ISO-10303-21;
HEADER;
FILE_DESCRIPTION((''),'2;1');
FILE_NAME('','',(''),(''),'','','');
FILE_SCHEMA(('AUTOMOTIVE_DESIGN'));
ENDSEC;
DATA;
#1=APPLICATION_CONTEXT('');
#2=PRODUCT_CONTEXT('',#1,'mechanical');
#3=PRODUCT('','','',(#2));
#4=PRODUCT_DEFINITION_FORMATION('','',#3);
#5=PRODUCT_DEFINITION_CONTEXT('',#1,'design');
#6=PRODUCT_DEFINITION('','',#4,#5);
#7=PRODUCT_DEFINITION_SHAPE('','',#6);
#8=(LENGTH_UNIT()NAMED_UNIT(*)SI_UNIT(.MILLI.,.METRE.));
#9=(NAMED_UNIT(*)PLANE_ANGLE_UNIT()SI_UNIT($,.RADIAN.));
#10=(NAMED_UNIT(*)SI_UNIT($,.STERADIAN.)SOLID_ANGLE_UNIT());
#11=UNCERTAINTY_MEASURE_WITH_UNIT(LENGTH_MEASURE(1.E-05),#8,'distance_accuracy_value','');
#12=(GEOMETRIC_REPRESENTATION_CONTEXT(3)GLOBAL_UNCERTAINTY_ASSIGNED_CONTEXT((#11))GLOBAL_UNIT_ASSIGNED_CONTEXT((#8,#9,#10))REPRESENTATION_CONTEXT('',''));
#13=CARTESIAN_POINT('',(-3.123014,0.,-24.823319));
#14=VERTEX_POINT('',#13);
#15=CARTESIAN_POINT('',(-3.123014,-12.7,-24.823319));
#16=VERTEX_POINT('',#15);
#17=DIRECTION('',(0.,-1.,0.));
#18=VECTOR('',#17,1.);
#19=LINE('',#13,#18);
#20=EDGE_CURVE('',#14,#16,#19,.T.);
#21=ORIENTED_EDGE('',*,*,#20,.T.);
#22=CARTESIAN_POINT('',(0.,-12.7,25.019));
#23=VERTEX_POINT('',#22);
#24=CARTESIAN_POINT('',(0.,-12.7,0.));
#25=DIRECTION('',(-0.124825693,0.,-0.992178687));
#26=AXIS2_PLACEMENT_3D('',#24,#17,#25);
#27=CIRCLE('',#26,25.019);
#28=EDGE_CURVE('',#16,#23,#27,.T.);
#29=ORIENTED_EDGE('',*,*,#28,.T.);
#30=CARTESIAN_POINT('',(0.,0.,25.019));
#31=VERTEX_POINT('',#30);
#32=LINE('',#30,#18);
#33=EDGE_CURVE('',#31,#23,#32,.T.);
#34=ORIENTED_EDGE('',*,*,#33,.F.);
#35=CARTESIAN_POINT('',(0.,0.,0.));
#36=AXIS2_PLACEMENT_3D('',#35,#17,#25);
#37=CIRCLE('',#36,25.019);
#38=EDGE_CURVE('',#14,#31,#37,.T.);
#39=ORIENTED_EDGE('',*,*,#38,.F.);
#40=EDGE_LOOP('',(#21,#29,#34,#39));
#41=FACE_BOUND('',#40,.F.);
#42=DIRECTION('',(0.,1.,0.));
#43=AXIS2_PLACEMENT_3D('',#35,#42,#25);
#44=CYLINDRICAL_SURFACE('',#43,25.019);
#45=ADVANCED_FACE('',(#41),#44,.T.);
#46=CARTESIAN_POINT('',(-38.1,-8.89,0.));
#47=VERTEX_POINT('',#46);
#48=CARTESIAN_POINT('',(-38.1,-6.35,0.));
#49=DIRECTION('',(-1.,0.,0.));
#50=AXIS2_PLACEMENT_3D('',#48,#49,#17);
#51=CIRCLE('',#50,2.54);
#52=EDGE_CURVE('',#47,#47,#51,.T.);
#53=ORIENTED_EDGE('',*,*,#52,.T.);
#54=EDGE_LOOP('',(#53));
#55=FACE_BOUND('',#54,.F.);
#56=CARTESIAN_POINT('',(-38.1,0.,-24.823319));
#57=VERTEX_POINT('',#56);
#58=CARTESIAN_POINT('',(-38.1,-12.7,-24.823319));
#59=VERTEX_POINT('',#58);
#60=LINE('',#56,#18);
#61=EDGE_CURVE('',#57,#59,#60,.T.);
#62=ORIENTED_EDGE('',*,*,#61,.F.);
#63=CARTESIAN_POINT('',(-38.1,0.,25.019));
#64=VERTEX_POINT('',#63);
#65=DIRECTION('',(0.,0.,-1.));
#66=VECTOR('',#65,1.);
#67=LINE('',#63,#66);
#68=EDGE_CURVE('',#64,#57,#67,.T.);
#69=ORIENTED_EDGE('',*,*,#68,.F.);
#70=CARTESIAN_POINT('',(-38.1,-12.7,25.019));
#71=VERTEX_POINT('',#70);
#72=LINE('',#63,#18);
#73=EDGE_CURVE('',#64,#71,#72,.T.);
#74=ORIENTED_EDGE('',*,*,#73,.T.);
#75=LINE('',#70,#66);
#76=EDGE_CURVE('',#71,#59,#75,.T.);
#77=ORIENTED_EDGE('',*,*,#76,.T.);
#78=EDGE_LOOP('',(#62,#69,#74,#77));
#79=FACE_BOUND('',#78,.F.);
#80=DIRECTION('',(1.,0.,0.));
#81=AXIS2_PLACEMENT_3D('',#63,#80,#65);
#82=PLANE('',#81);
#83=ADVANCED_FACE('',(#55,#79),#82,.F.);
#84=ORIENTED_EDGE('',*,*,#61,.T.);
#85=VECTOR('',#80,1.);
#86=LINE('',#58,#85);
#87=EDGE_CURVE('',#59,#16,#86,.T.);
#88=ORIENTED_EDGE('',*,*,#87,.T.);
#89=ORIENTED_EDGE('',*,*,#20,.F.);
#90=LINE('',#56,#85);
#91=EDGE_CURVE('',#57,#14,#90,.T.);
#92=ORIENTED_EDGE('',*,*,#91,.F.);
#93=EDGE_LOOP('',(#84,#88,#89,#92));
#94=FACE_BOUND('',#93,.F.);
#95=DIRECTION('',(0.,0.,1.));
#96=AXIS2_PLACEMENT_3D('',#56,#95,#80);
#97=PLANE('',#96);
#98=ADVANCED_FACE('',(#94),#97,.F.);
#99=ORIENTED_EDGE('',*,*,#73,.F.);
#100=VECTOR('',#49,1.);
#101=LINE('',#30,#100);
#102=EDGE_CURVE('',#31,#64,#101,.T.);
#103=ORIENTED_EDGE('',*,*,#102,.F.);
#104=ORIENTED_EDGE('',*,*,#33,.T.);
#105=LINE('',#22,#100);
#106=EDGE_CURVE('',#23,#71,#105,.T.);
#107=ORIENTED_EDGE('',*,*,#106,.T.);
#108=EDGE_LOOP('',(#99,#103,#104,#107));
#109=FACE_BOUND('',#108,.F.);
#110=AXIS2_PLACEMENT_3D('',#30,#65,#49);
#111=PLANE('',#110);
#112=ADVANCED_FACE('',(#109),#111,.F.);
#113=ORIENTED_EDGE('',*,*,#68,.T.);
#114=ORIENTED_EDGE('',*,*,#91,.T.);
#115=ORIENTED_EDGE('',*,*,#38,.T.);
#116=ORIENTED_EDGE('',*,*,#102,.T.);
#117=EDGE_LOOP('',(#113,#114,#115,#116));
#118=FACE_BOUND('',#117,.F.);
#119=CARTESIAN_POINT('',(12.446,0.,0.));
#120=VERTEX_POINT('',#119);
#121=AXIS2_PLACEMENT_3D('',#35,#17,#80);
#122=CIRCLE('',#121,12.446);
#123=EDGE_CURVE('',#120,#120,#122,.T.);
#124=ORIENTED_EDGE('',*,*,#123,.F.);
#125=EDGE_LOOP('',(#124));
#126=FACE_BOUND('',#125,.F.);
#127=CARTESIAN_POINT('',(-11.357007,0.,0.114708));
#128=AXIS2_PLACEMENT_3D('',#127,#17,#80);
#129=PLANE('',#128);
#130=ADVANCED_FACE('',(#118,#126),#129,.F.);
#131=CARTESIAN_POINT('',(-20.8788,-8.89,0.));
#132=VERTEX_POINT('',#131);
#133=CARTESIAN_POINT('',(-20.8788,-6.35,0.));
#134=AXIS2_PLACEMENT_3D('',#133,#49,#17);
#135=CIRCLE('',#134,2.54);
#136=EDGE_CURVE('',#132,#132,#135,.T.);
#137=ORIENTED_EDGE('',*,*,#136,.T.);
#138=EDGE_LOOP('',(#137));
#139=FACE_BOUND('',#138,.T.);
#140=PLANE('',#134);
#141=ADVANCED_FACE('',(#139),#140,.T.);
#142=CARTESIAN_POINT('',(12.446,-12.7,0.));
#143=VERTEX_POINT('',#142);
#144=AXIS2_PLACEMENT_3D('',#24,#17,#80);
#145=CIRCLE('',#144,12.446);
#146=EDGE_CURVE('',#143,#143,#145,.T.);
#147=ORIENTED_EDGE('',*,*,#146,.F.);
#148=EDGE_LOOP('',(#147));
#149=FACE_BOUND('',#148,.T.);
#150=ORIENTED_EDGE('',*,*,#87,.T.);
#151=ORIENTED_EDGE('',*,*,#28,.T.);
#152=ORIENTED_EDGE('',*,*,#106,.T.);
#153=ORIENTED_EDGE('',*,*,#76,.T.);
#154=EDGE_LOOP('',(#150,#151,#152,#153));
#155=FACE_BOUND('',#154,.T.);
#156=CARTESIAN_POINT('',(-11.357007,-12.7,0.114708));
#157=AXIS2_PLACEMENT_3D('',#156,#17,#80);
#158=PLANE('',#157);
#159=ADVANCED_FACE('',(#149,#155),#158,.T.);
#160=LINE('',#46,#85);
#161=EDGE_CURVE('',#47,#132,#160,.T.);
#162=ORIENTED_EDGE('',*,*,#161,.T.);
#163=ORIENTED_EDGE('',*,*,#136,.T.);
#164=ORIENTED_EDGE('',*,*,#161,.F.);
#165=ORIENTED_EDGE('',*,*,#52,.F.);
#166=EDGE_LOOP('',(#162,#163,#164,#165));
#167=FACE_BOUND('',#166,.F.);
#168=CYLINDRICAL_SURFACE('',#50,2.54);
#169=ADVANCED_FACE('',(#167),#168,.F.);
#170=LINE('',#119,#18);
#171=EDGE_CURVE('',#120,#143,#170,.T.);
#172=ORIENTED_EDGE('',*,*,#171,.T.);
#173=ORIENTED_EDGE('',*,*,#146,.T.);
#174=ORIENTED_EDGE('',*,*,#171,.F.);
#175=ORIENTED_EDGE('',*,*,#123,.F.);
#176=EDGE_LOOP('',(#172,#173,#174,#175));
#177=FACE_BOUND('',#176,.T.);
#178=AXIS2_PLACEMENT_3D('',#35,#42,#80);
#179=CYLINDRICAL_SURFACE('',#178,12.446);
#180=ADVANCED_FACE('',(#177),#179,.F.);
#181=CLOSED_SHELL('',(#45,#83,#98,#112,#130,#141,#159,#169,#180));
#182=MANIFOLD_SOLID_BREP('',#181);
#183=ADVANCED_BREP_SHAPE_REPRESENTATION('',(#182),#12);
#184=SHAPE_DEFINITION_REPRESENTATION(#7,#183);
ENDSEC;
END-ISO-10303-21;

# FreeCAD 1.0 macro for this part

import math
import FreeCAD as App
import Part
import Sketcher
from FreeCAD import Vector
Q = App.Units.Quantity

doc = App.newDocument("Part")
body = doc.addObject("PartDesign::Body", "Body")

sketch1 = doc.addObject("Sketcher::SketchObject", "Sketch")
body.addObject(sketch1)
sketch1.AttachmentSupport = (doc.XZ_Plane, [""])
sketch1.MapMode = "FlatFace"
sketch1.addGeometry([
    Part.LineSegment(Vector(-38, -25, 0), Vector(-3, -25, 0)),
    Part.ArcOfCircle(Part.Circle(Vector(0, 0, 0), Vector(0, 0, 1), 25), math.radians(-97), math.radians(90)),
    Part.LineSegment(Vector(0, 25, 0), Vector(-38, 25, 0)),
    Part.LineSegment(Vector(-38, 25, 0), Vector(-38, -25, 0)),
    Part.Circle(Vector(0, 0, 0), Vector(0, 0, 1), 12),
], False)
sketch1.addConstraint([
    Sketcher.Constraint("Coincident", 0, 2, 1, 1),
    Sketcher.Constraint("Tangent", 1, 2, 2, 1),
    Sketcher.Constraint("Coincident", 2, 2, 3, 1),
    Sketcher.Constraint("Coincident", 3, 2, 0, 1),
    Sketcher.Constraint("Horizontal", 0),
    Sketcher.Constraint("Horizontal", 2),
    Sketcher.Constraint("Vertical", 3),
    Sketcher.Constraint("Coincident", 1, 3, -1, 1),
    Sketcher.Constraint("Coincident", 4, 3, -1, 1),
    Sketcher.Constraint("Diameter", 4, Q("0.98 in")),
    Sketcher.Constraint("DistanceX", 2, 2, 2, 1, Q("1.5 in")),
    Sketcher.Constraint("Radius", 1, Q("0.985 in")),
    Sketcher.Constraint("DistanceY", 3, 2, 3, 1, 49.842319),
])
pad1 = doc.addObject("PartDesign::Pad", "Pad")
body.addObject(pad1)
pad1.Profile = sketch1
pad1.Length = Q("0.5 in")

sketch2 = doc.addObject("Sketcher::SketchObject", "Sketch001")
body.addObject(sketch2)
sketch2.AttachmentSupport = (doc.YZ_Plane, [""])
sketch2.MapMode = "FlatFace"
sketch2.AttachmentOffset = App.Placement(Vector(0, 0, -1.5 * 25.4), App.Rotation())
sketch2.addGeometry(Part.Circle(Vector(-6.3, 0, 0), Vector(0, 0, 1), 2.5), False)
sketch2.addConstraint([
    Sketcher.Constraint("PointOnObject", 0, 3, -1),
    Sketcher.Constraint("Diameter", 0, Q("0.2 in")),
    Sketcher.Constraint("DistanceX", 0, 3, -1, 1, Q("0.25 in")),
])
pocket1 = doc.addObject("PartDesign::Pocket", "Pocket")
body.addObject(pocket1)
pocket1.Profile = sketch2
pocket1.Length = Q("0.678 in")
pocket1.Reversed = True

doc.recompute()
